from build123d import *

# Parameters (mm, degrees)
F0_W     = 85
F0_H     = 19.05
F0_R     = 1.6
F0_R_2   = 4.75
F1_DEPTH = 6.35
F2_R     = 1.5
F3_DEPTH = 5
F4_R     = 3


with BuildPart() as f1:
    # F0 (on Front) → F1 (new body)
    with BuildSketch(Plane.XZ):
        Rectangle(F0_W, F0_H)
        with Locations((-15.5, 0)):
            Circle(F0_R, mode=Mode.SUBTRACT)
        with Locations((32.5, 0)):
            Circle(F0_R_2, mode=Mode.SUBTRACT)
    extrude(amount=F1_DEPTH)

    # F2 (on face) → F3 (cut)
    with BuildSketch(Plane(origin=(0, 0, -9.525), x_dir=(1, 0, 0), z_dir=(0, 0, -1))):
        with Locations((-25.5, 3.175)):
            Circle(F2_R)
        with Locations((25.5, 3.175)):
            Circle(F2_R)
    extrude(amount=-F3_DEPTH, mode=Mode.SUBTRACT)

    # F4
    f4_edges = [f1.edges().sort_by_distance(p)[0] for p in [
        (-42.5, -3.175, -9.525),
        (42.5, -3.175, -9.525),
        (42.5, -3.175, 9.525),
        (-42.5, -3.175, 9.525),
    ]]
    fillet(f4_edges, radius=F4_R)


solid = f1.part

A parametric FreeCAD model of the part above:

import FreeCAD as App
import Part
import Sketcher
from FreeCAD import Vector
Q = App.Units.Quantity


def edges_at(feature, points):
    """Names of the edges that pass closest to the given points."""
    edges = feature.Shape.Edges
    near = lambda p: min(range(len(edges)), key=lambda i: edges[i].distToShape(Part.Vertex(*p))[0])
    return sorted({f"Edge{near(p) + 1}" for p in points})

doc = App.newDocument("Part")
params = doc.addObject("Spreadsheet::Sheet", "Params")
for row, (alias, value) in enumerate([
    ("sketch1_diameter", "3.2 mm"),
    ("sketch1_diameter2", "9.5 mm"),
    ("sketch1_width", "85 mm"),
    ("sketch1_height", "19.05 mm"),
    ("pad1_length", "6.35 mm"),
    ("sketch2_diameter", "3 mm"),
    ("pocket1_length", "5 mm"),
    ("fillet_radius", "3 mm"),
], start=1):
    params.set(f"A{row}", alias)
    params.set(f"B{row}", "=" + value)
    params.setAlias(f"B{row}", alias)

body = doc.addObject("PartDesign::Body", "Body")

# Sketch on XZ plane
sketch1 = body.newObject("Sketcher::SketchObject", "Sketch")
sketch1.AttachmentSupport = (doc.getObject("XZ_Plane"), [""])
sketch1.MapMode = "FlatFace"
sketch1.addGeometry([
    Part.LineSegment(Vector(-42.5, 9.5, 0), Vector(-42.5, -9.5, 0)),  # 0
    Part.LineSegment(Vector(-42.5, -9.5, 0), Vector(42.5, -9.5, 0)),  # 1
    Part.LineSegment(Vector(42.5, -9.5, 0), Vector(42.5, 9.5, 0)),  # 2
    Part.LineSegment(Vector(42.5, 9.5, 0), Vector(-42.5, 9.5, 0)),  # 3
    Part.Circle(Vector(-15.5, 0, 0), Vector(0, 0, 1), 1.6),  # 4
    Part.Circle(Vector(32.5, 0, 0), Vector(0, 0, 1), 4.8),  # 5
], False)
sketch1.addConstraint([
    Sketcher.Constraint("Coincident", 0, 2, 1, 1),
    Sketcher.Constraint("Coincident", 1, 2, 2, 1),
    Sketcher.Constraint("Coincident", 2, 2, 3, 1),
    Sketcher.Constraint("Coincident", 3, 2, 0, 1),
    Sketcher.Constraint("Vertical", 0),
    Sketcher.Constraint("Horizontal", 1),
    Sketcher.Constraint("Vertical", 2),
    Sketcher.Constraint("Horizontal", 3),
    Sketcher.Constraint("Symmetric", 0, 2, 2, 2, -1, 1),
    Sketcher.Constraint("PointOnObject", 4, 3, -1),
    Sketcher.Constraint("PointOnObject", 5, 3, -1),
    Sketcher.Constraint("Diameter", 4, Q("3.2 mm")),
    Sketcher.Constraint("Diameter", 5, Q("9.5 mm")),
    Sketcher.Constraint("DistanceX", 1, 1, 1, 2, Q("85 mm")),
    Sketcher.Constraint("DistanceX", 4, 3, 5, 3, Q("48 mm")),
    Sketcher.Constraint("DistanceX", 0, 2, 4, 3, Q("27 mm")),
    Sketcher.Constraint("DistanceY", 0, 2, 0, 1, Q("19.05 mm")),
])
sketch1.setExpression("Constraints[11]", "Params.sketch1_diameter")
sketch1.setExpression("Constraints[12]", "Params.sketch1_diameter2")
sketch1.setExpression("Constraints[13]", "Params.sketch1_width")
sketch1.setExpression("Constraints[16]", "Params.sketch1_height")
pad1 = body.newObject("PartDesign::Pad", "Pad")
pad1.Profile = sketch1
pad1.setExpression("Length", "Params.pad1_length")

# Sketch on XY plane
sketch2 = body.newObject("Sketcher::SketchObject", "Sketch001")
sketch2.AttachmentSupport = (doc.getObject("XY_Plane"), [""])
sketch2.MapMode = "FlatFace"
sketch2.AttachmentOffset = App.Placement(Vector(0, 0, -9.525), App.Rotation())
sketch2.addGeometry([
    Part.Circle(Vector(-25.5, -3.2, 0), Vector(0, 0, 1), 1.5),
    Part.Circle(Vector(25.5, -3.2, 0), Vector(0, 0, 1), 1.5),
], False)
sketch2.addConstraint([
    Sketcher.Constraint("Equal", 0, 1),
    Sketcher.Constraint("Symmetric", 0, 3, 1, 3, -2),
    Sketcher.Constraint("Diameter", 0, Q("3 mm")),
    Sketcher.Constraint("DistanceX", 0, 3, 1, 3, Q("51 mm")),
    Sketcher.Constraint("DistanceY", 0, 3, -1, 1, Q("3.175 mm")),
])
sketch2.setExpression("Constraints[2]", "Params.sketch2_diameter")
pocket1 = body.newObject("PartDesign::Pocket", "Pocket")
pocket1.Profile = sketch2
pocket1.setExpression("Length", "Params.pocket1_length")
pocket1.Reversed = True
doc.recompute()

fillet = body.newObject("PartDesign::Fillet", "Fillet")
fillet.Base = (pocket1, edges_at(pocket1, [
    (-42.5, -3.175, -9.525),
    (42.5, -3.175, -9.525),
    (42.5, -3.175, 9.525),
    (-42.5, -3.175, 9.525),
]))
fillet.setExpression("Radius", "Params.fillet_radius")

doc.recompute()
